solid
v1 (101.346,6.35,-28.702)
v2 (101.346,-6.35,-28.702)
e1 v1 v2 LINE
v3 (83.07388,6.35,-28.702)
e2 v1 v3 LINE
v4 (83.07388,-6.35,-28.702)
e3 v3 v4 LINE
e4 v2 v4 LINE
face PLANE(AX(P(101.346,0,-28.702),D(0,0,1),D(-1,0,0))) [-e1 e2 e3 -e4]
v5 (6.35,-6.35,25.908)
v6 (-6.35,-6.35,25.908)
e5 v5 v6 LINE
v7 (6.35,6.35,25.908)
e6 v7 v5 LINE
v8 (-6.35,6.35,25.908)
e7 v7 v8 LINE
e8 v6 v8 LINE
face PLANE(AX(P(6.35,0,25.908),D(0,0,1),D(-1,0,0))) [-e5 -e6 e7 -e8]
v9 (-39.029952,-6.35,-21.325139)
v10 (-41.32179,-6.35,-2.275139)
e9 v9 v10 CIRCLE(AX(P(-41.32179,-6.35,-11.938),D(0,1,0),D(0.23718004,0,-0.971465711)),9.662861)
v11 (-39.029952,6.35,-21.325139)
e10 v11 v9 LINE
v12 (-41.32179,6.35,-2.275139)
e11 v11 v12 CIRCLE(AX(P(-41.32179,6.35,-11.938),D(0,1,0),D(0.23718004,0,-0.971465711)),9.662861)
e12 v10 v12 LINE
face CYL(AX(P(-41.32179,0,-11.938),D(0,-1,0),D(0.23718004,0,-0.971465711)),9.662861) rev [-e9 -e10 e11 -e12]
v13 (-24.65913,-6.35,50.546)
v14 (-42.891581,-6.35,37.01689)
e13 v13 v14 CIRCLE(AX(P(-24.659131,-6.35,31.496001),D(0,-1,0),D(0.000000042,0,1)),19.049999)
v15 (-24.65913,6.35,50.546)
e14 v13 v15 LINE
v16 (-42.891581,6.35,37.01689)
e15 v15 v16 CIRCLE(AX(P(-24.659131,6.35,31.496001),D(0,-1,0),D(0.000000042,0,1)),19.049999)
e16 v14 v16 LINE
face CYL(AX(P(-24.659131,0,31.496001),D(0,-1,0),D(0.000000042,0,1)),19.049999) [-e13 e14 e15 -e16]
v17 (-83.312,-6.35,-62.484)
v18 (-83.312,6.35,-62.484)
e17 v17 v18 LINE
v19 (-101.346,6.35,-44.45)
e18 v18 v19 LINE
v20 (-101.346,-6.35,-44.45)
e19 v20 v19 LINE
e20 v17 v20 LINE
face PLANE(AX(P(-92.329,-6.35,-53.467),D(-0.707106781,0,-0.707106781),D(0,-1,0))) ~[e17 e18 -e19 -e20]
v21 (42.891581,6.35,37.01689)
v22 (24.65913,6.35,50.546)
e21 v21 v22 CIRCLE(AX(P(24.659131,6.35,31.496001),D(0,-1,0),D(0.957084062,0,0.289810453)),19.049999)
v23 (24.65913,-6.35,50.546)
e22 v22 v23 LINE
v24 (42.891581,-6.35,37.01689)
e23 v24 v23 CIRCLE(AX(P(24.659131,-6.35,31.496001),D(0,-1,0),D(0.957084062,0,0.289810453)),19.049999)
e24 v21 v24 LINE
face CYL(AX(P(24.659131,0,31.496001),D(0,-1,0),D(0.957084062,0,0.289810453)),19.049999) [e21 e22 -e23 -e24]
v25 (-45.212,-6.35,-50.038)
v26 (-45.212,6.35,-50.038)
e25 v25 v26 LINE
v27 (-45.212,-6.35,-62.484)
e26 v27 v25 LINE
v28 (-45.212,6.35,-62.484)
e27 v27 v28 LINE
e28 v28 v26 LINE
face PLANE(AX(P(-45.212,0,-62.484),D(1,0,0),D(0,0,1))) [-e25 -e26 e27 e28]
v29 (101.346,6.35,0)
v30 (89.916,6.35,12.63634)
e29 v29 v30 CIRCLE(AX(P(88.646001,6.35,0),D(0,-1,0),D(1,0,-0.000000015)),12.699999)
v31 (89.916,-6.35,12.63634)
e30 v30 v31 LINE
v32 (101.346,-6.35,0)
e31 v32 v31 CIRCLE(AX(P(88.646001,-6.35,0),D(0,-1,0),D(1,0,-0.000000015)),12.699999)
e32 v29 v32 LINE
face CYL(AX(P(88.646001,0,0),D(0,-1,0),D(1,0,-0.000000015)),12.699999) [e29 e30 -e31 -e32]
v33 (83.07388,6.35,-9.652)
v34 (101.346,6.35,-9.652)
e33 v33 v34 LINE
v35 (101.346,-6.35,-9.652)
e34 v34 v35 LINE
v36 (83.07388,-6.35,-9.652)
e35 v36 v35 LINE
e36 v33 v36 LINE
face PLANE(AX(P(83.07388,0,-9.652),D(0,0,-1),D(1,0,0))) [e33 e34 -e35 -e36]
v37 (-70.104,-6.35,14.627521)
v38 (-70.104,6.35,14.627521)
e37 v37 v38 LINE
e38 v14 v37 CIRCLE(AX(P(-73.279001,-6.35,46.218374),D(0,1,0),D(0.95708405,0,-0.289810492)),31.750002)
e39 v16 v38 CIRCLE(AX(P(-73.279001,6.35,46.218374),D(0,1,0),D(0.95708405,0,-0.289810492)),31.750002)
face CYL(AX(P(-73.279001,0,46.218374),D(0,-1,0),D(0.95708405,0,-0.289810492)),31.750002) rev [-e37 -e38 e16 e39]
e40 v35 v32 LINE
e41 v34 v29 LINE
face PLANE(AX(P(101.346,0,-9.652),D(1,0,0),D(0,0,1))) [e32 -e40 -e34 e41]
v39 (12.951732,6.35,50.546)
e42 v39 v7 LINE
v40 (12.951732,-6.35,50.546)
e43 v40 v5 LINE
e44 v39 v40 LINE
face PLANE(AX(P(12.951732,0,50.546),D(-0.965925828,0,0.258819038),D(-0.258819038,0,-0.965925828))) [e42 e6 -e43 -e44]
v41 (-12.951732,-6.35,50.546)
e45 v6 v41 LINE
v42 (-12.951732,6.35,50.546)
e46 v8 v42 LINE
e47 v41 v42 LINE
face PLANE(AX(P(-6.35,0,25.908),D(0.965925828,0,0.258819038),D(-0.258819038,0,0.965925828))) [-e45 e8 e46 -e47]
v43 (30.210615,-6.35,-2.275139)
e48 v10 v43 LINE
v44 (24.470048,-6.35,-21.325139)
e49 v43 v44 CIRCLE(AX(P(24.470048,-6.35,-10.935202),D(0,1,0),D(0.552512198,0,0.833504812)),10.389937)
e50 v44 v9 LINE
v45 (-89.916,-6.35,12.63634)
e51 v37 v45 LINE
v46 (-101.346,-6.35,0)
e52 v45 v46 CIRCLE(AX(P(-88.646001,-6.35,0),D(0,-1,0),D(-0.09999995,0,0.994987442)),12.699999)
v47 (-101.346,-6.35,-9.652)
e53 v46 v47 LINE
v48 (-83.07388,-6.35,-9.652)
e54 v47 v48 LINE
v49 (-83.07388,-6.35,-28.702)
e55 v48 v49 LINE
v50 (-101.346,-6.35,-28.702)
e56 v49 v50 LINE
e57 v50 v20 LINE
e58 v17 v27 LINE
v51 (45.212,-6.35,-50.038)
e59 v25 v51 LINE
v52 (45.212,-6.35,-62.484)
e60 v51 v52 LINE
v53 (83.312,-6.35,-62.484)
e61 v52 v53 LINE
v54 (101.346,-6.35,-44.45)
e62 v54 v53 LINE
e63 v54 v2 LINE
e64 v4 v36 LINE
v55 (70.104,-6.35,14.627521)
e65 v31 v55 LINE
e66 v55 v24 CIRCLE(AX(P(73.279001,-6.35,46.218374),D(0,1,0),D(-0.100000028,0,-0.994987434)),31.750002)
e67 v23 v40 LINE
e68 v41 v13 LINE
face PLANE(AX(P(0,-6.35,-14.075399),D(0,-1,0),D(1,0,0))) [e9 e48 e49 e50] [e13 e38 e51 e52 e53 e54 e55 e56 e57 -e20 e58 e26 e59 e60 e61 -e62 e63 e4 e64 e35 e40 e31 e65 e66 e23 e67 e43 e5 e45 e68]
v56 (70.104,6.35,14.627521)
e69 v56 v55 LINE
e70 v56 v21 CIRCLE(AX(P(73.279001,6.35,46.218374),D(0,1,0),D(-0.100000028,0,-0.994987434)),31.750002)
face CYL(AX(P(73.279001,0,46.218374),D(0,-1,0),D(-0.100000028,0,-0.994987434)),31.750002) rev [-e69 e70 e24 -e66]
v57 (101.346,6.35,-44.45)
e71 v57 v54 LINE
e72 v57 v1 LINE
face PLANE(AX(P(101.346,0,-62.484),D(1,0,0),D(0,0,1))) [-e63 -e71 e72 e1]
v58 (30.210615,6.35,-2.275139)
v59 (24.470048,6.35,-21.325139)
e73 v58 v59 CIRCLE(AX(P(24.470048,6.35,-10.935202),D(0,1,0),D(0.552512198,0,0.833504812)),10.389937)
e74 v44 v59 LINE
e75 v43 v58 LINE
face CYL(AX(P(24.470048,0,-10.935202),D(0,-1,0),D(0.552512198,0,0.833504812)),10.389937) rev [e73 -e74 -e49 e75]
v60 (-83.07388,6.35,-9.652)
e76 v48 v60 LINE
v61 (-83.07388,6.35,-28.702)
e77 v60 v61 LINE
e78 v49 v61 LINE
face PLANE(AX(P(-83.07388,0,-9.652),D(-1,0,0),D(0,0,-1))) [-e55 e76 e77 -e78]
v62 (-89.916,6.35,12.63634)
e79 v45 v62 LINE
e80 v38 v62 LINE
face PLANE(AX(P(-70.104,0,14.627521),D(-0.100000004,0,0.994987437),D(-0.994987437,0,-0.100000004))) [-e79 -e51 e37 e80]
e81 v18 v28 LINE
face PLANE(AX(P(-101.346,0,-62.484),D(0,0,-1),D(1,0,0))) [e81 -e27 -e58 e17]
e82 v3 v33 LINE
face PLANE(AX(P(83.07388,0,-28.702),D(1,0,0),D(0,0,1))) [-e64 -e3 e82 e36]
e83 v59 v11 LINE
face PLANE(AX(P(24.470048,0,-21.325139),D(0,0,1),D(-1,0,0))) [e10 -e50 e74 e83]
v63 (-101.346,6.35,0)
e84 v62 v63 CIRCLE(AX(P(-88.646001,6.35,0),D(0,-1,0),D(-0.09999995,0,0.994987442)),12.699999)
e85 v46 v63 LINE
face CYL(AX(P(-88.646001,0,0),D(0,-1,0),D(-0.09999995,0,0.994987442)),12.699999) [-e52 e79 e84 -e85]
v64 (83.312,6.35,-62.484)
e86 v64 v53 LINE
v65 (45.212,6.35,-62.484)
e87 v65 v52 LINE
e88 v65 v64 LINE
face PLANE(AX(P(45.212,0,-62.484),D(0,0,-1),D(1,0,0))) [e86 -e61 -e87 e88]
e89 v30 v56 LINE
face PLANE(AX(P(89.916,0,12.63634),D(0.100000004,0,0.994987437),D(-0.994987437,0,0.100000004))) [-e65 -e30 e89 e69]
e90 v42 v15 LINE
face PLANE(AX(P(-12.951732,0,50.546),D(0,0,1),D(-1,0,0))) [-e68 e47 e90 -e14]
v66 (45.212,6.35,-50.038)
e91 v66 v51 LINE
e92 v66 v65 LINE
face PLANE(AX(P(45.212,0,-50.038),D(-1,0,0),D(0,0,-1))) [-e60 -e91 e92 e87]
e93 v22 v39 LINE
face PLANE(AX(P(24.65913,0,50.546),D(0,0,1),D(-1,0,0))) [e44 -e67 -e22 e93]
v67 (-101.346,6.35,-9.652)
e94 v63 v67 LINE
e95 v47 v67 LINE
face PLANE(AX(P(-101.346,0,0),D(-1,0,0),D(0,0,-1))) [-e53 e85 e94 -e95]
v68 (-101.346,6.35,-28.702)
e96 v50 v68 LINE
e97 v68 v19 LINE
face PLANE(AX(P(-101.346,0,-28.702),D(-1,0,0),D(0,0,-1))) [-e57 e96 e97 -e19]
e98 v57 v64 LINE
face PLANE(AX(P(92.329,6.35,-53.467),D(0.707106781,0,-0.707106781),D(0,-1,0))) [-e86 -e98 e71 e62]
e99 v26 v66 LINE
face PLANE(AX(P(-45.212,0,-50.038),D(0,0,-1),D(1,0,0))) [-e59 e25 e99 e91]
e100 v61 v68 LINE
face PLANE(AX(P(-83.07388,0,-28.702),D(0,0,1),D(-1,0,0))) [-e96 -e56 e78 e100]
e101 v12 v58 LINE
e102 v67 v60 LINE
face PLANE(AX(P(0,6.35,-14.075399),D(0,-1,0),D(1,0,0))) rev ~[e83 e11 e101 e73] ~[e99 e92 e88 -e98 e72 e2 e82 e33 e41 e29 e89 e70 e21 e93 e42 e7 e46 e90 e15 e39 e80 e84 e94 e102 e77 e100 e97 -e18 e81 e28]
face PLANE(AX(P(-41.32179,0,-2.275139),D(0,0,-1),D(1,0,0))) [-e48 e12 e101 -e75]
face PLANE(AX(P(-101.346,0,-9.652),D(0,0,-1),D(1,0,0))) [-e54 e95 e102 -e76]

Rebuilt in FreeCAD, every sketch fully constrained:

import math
import FreeCAD as App
import Part
import Sketcher
from FreeCAD import Vector
Q = App.Units.Quantity


def edges_at(feature, points):
    """Names of the edges that pass closest to the given points."""
    edges = feature.Shape.Edges
    near = lambda p: min(range(len(edges)), key=lambda i: edges[i].distToShape(Part.Vertex(*p))[0])
    return sorted({f"Edge{near(p) + 1}" for p in points})

doc = App.newDocument("Part")
body = doc.addObject("PartDesign::Body", "Body")

# Sketch on XZ plane
sketch1 = body.newObject("Sketcher::SketchObject", "Sketch")
sketch1.AttachmentSupport = (doc.getObject("XZ_Plane"), [""])
sketch1.MapMode = "FlatFace"
sketch1.addGeometry([
    Part.LineSegment(Vector(-45, -50, 0), Vector(45, -50, 0)),  # 0
    Part.LineSegment(Vector(45, -50, 0), Vector(45, -62, 0)),  # 1
    Part.LineSegment(Vector(45, -62, 0), Vector(101, -62, 0)),  # 2
    Part.LineSegment(Vector(101, -62, 0), Vector(101, -29, 0)),  # 3
    Part.LineSegment(Vector(101, -29, 0), Vector(83, -29, 0)),  # 4
    Part.LineSegment(Vector(83, -29, 0), Vector(83, -10, 0)),  # 5
    Part.LineSegment(Vector(83, -10, 0), Vector(101, -10, 0)),  # 6
    Part.LineSegment(Vector(101, -10, 0), Vector(101, 0, 0)),  # 7
    Part.ArcOfCircle(Part.Circle(Vector(89, 0, 0), Vector(0, 0, 1), 13), math.radians(0), math.radians(84)),  # 8
    Part.LineSegment(Vector(90, 13, 0), Vector(70, 15, 0)),  # 9
    Part.ArcOfCircle(Part.Circle(Vector(73, 46, 0), Vector(0, 0, 1), 32), math.radians(-163), math.radians(-96)),  # 10
    Part.ArcOfCircle(Part.Circle(Vector(25, 31, 0), Vector(0, 0, 1), 19), math.radians(17), math.radians(90)),  # 11
    Part.LineSegment(Vector(25, 51, 0), Vector(13, 51, 0)),  # 12
    Part.LineSegment(Vector(13, 51, 0), Vector(6, 26, 0)),  # 13
    Part.LineSegment(Vector(6, 26, 0), Vector(-6, 26, 0)),  # 14
    Part.LineSegment(Vector(-6, 26, 0), Vector(-13, 51, 0)),  # 15
    Part.LineSegment(Vector(-13, 51, 0), Vector(-25, 51, 0)),  # 16
    Part.ArcOfCircle(Part.Circle(Vector(-25, 31, 0), Vector(0, 0, 1), 19), math.radians(90), math.radians(163)),  # 17
    Part.ArcOfCircle(Part.Circle(Vector(-73, 46, 0), Vector(0, 0, 1), 32), math.radians(-84), math.radians(-17)),  # 18
    Part.LineSegment(Vector(-70, 15, 0), Vector(-90, 13, 0)),  # 19
    Part.ArcOfCircle(Part.Circle(Vector(-89, 0, 0), Vector(0, 0, 1), 13), math.radians(96), math.radians(180)),  # 20
    Part.LineSegment(Vector(-101, 0, 0), Vector(-101, -10, 0)),  # 21
    Part.LineSegment(Vector(-101, -10, 0), Vector(-83, -10, 0)),  # 22
    Part.LineSegment(Vector(-83, -10, 0), Vector(-83, -29, 0)),  # 23
    Part.LineSegment(Vector(-83, -29, 0), Vector(-101, -29, 0)),  # 24
    Part.LineSegment(Vector(-101, -29, 0), Vector(-101, -62, 0)),  # 25
    Part.LineSegment(Vector(-101, -62, 0), Vector(-45, -62, 0)),  # 26
    Part.LineSegment(Vector(-45, -62, 0), Vector(-45, -50, 0)),  # 27
    Part.LineSegment(Vector(24, -21, 0), Vector(-39, -21, 0)),  # 28
    Part.ArcOfCircle(Part.Circle(Vector(-41, -12, 0), Vector(0, 0, 1), 10), math.radians(90), math.radians(284)),  # 29
    Part.LineSegment(Vector(-41, -2, 0), Vector(30, -2, 0)),  # 30
    Part.ArcOfCircle(Part.Circle(Vector(24, -11, 0), Vector(0, 0, 1), 10), math.radians(-90), math.radians(56)),  # 31
], False)
sketch1.addConstraint([
    Sketcher.Constraint("Coincident", 0, 2, 1, 1),
    Sketcher.Constraint("Coincident", 1, 2, 2, 1),
    Sketcher.Constraint("Coincident", 2, 2, 3, 1),
    Sketcher.Constraint("Coincident", 3, 2, 4, 1),
    Sketcher.Constraint("Coincident", 4, 2, 5, 1),
    Sketcher.Constraint("Coincident", 5, 2, 6, 1),
    Sketcher.Constraint("Coincident", 6, 2, 7, 1),
    Sketcher.Constraint("Tangent", 7, 2, 8, 1),
    Sketcher.Constraint("Tangent", 8, 2, 9, 1),
    Sketcher.Constraint("Tangent", 9, 2, 10, 2),
    Sketcher.Constraint("Tangent", 10, 1, 11, 1),
    Sketcher.Constraint("Tangent", 11, 2, 12, 1),
    Sketcher.Constraint("Coincident", 12, 2, 13, 1),
    Sketcher.Constraint("Coincident", 13, 2, 14, 1),
    Sketcher.Constraint("Coincident", 14, 2, 15, 1),
    Sketcher.Constraint("Coincident", 15, 2, 16, 1),
    Sketcher.Constraint("Tangent", 16, 2, 17, 1),
    Sketcher.Constraint("Tangent", 17, 2, 18, 2),
    Sketcher.Constraint("Tangent", 18, 1, 19, 1),
    Sketcher.Constraint("Tangent", 19, 2, 20, 1),
    Sketcher.Constraint("Tangent", 20, 2, 21, 1),
    Sketcher.Constraint("Coincident", 21, 2, 22, 1),
    Sketcher.Constraint("Coincident", 22, 2, 23, 1),
    Sketcher.Constraint("Coincident", 23, 2, 24, 1),
    Sketcher.Constraint("Coincident", 24, 2, 25, 1),
    Sketcher.Constraint("Coincident", 25, 2, 26, 1),
    Sketcher.Constraint("Coincident", 26, 2, 27, 1),
    Sketcher.Constraint("Coincident", 27, 2, 0, 1),
    Sketcher.Constraint("Coincident", 28, 2, 29, 2),
    Sketcher.Constraint("Tangent", 29, 1, 30, 1),
    Sketcher.Constraint("Coincident", 30, 2, 31, 2),
    Sketcher.Constraint("Tangent", 31, 1, 28, 1),
    Sketcher.Constraint("Horizontal", 0),
    Sketcher.Constraint("Vertical", 1),
    Sketcher.Constraint("Horizontal", 2),
    Sketcher.Constraint("Vertical", 3),
    Sketcher.Constraint("Horizontal", 4),
    Sketcher.Constraint("Vertical", 5),
    Sketcher.Constraint("Horizontal", 6),
    Sketcher.Constraint("Vertical", 7),
    Sketcher.Constraint("Horizontal", 12),
    Sketcher.Constraint("Horizontal", 14),
    Sketcher.Constraint("Horizontal", 16),
    Sketcher.Constraint("Vertical", 21),
    Sketcher.Constraint("Horizontal", 22),
    Sketcher.Constraint("Vertical", 23),
    Sketcher.Constraint("Horizontal", 24),
    Sketcher.Constraint("Vertical", 25),
    Sketcher.Constraint("Horizontal", 26),
    Sketcher.Constraint("Vertical", 27),
    Sketcher.Constraint("Horizontal", 28),
    Sketcher.Constraint("Horizontal", 30),
    Sketcher.Constraint("Equal", 11, 17),
    Sketcher.Constraint("Equal", 10, 18),
    Sketcher.Constraint("Equal", 8, 20),
    Sketcher.Constraint("Symmetric", 8, 3, 20, 3, -1, 1),
    Sketcher.Constraint("Symmetric", 11, 3, 17, 3, -2),
    Sketcher.Constraint("Symmetric", 9, 2, 18, 1, -2),
    Sketcher.Constraint("Symmetric", 5, 2, 22, 2, -2),
    Sketcher.Constraint("Symmetric", 3, 2, 24, 2, -2),
    Sketcher.Constraint("Symmetric", 1, 2, 26, 2, -2),
    Sketcher.Constraint("Vertical", 3, 2, 6, 2),
    Sketcher.Constraint("Equal", 12, 16),
    Sketcher.Constraint("Equal", 13, 15),
    Sketcher.Constraint("Radius", 8, Q("0.5 in")),
    Sketcher.Constraint("Radius", 10, Q("1.2500001 in")),
    Sketcher.Constraint("Radius", 11, Q("0.75 in")),
    Sketcher.Constraint("DistanceX", 14, 2, 14, 1, Q("0.5 in")),
    Sketcher.Constraint("DistanceX", 28, 2, 28, 1, Q("2.5 in")),
    Sketcher.Constraint("Angle", 13, Q("-105 deg")),
    Sketcher.Constraint("DistanceX", 0, 1, 0, 2, Q("3.56 in")),
    Sketcher.Constraint("DistanceX", 2, 1, 2, 2, Q("2.21 in")),
    Sketcher.Constraint("DistanceY", 1, 2, 1, 1, Q("0.49 in")),
    Sketcher.Constraint("DistanceY", 3, 1, 3, 2, Q("1.33 in")),
    Sketcher.Constraint("DistanceY", 5, 1, 5, 2, Q("0.75 in")),
    Sketcher.Constraint("DistanceY", 7, 1, 7, 2, Q("0.38 in")),
    Sketcher.Constraint("DistanceY", 0, 2, 29, 3, Q("1.5 in")),
    Sketcher.Constraint("DistanceY", 1, 2, 11, 3, Q("3.7 in")),
    Sketcher.Constraint("DistanceX", -1, 1, 8, 2, Q("3.54 in")),
    Sketcher.Constraint("DistanceX", -1, 1, 9, 2, Q("2.76 in")),
    Sketcher.Constraint("DistanceY", -1, 1, 13, 2, Q("1.02 in")),
    Sketcher.Constraint("DistanceY", 28, 2, 29, 1, Q("0.75 in")),
    Sketcher.Constraint("Radius", 29, Q("9.662861 mm")),
    Sketcher.Constraint("Radius", 31, Q("10.389937 mm")),
    Sketcher.Constraint("DistanceX", 4, 2, 4, 1, Q("18.27212 mm")),
    Sketcher.Constraint("DistanceX", 29, 3, -1, 1, Q("41.32179 mm")),
])
pad1 = body.newObject("PartDesign::Pad", "Pad")
pad1.Profile = sketch1
pad1.Length = Q("0.5 in")
pad1.Midplane = True
doc.recompute()

chamfer = body.newObject("PartDesign::Chamfer", "Chamfer")
chamfer.Base = (pad1, edges_at(pad1, [(-101.346, 0, -62.484), (101.346, 0, -62.484)]))
chamfer.Size = Q("0.71 in")

doc.recompute()
